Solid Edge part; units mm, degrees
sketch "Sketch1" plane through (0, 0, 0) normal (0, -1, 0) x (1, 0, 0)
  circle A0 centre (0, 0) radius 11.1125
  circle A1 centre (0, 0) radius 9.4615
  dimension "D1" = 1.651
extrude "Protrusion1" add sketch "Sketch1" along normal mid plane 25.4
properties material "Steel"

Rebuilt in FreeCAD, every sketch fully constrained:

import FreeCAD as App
import Part
import Sketcher

V = App.Vector
Q = App.Units.Quantity

doc = App.newDocument("Part")
body = doc.addObject("PartDesign::Body", "Body")

sketch1 = body.newObject("Sketcher::SketchObject", "Sketch")
sketch1.AttachmentSupport = (doc.getObject("XZ_Plane"), [""])
sketch1.MapMode = "FlatFace"
sketch1.addGeometry([
    Part.Circle(V(0, 0, 0), V(0, 0, 1), 11),
    Part.Circle(V(0, 0, 0), V(0, 0, 1), 9),
], False)
sketch1.addConstraint([
    Sketcher.Constraint("Coincident", 0, 3, -1, 1),
    Sketcher.Constraint("Coincident", 1, 3, -1, 1),
    Sketcher.Constraint("Diameter", 0, Q("0.875 in")),
    Sketcher.Constraint("Diameter", 1, Q("0.745 in")),
])
pad1 = body.newObject("PartDesign::Pad", "Pad")
pad1.Profile = sketch1
pad1.Length = Q("1 in")
pad1.Midplane = True

doc.recompute()
